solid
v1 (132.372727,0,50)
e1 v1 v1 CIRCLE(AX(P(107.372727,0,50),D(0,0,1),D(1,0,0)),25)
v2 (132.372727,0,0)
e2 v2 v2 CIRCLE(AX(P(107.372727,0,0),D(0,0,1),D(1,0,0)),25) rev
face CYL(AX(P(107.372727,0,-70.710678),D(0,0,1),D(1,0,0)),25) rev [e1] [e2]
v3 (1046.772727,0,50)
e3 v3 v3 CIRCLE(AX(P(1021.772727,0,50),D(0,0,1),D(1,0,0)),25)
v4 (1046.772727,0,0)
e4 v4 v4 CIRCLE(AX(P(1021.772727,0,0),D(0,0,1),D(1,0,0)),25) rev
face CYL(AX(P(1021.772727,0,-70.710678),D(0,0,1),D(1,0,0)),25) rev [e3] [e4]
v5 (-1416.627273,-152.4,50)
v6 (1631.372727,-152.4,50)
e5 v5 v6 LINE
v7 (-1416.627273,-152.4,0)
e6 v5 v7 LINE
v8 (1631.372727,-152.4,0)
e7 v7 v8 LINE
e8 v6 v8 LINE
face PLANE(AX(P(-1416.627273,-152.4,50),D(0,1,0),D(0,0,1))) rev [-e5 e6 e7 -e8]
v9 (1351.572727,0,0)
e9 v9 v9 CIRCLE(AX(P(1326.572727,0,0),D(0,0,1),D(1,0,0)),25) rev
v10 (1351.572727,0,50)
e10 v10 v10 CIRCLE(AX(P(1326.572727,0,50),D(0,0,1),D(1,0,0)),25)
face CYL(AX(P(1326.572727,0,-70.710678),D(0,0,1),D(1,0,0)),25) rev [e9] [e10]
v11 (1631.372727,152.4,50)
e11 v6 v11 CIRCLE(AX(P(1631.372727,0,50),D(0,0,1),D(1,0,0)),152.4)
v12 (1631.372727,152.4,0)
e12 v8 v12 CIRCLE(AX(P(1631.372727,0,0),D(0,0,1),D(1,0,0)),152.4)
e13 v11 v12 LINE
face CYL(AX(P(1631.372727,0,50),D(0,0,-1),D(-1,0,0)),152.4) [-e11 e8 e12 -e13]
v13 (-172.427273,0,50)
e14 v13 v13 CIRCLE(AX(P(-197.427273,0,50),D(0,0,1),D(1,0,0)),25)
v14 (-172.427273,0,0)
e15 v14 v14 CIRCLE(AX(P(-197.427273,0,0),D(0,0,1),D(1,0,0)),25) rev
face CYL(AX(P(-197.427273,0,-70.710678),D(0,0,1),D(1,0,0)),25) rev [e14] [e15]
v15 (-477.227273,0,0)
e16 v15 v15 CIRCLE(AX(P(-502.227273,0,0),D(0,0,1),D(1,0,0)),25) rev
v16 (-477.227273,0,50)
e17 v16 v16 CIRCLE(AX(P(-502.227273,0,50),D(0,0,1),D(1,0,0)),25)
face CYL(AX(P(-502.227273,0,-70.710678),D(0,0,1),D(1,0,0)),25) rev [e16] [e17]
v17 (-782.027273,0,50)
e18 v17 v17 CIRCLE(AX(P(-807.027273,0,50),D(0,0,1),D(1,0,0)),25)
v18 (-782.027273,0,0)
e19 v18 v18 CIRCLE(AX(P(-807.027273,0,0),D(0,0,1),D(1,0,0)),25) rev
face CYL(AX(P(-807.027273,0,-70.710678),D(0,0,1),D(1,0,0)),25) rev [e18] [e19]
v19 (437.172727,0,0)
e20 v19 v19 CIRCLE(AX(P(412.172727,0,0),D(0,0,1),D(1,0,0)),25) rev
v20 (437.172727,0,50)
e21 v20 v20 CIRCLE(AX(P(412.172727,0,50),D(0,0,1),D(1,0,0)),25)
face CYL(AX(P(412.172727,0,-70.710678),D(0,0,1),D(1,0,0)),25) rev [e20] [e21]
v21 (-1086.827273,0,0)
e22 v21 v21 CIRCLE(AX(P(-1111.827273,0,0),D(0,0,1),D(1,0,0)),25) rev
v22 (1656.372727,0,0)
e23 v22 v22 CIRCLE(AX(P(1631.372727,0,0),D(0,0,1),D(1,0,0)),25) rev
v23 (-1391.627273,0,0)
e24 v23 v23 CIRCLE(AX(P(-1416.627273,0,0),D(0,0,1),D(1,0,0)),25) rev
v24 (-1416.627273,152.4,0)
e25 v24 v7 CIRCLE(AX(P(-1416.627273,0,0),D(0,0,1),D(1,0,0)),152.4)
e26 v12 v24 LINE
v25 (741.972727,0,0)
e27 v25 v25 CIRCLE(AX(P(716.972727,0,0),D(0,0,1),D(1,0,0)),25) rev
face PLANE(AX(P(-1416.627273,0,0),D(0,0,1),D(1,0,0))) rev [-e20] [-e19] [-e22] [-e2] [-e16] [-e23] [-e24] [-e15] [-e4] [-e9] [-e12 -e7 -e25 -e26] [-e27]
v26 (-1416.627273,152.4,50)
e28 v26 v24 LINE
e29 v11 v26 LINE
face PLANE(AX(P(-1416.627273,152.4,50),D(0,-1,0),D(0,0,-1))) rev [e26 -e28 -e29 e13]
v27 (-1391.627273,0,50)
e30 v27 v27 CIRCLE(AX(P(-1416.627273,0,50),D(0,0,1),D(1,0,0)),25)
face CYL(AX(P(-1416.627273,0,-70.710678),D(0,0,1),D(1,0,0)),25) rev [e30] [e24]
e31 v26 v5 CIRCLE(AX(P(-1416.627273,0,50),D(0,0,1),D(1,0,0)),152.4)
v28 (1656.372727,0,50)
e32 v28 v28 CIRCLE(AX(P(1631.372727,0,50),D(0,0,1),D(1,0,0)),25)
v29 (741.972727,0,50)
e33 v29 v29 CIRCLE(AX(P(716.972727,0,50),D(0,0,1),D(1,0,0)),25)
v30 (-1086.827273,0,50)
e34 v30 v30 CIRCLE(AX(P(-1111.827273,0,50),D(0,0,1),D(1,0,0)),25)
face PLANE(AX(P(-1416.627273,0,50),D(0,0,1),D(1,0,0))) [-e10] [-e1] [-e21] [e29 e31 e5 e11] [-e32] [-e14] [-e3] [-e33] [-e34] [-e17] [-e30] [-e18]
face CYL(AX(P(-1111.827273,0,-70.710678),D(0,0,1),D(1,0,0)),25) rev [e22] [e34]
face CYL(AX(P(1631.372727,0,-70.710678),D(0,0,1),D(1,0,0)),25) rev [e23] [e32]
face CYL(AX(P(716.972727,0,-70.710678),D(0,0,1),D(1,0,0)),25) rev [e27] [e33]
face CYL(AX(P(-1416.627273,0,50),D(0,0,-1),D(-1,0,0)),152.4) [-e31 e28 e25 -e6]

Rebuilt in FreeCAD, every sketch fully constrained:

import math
import FreeCAD as App
import Part
import Sketcher
Q = App.Units.Quantity

doc = App.newDocument("Part")
body = doc.addObject("PartDesign::Body", "Body")

# Sketch on XY plane
sketch1 = doc.addObject("Sketcher::SketchObject", "Sketch")
body.addObject(sketch1)
sketch1.AttachmentSupport = (doc.XY_Plane, [""])
sketch1.MapMode = "FlatFace"
sketch1.addGeometry(Part.LineSegment(App.Vector(1631, 152, 0), App.Vector(-1417, 152, 0)), False)
sketch1.addGeometry(Part.ArcOfCircle(Part.Circle(App.Vector(-1417, 0, 0), App.Vector(0, 0, 1), 152), math.radians(90), math.radians(270)), False)
sketch1.addGeometry(Part.LineSegment(App.Vector(-1417, -152, 0), App.Vector(1631, -152, 0)), False)
sketch1.addGeometry(Part.ArcOfCircle(Part.Circle(App.Vector(1631, 0, 0), App.Vector(0, 0, 1), 152), math.radians(-90), math.radians(90)), False)
sketch1.addConstraint(Sketcher.Constraint("Tangent", 0, 2, 1, 1))
sketch1.addConstraint(Sketcher.Constraint("Tangent", 1, 2, 2, 1))
sketch1.addConstraint(Sketcher.Constraint("Tangent", 2, 2, 3, 1))
sketch1.addConstraint(Sketcher.Constraint("Tangent", 3, 2, 0, 1))
sketch1.addConstraint(Sketcher.Constraint("Horizontal", 0))
sketch1.addConstraint(Sketcher.Constraint("Horizontal", 2))
sketch1.addConstraint(Sketcher.Constraint("PointOnObject", 1, 3, -1))
sketch1.addConstraint(Sketcher.Constraint("Radius", 1, Q("6 in")))
sketch1.addConstraint(Sketcher.Constraint("DistanceX", 0, 2, 0, 1, Q("120 in")))
sketch1.addConstraint(Sketcher.Constraint("DistanceX", 1, 3, -1, 1, 1416.627273))
pad1 = doc.addObject("PartDesign::Pad", "Pad")
body.addObject(pad1)
pad1.Profile = sketch1
pad1.Length = 50

# Sketch on XY plane
sketch2 = doc.addObject("Sketcher::SketchObject", "Sketch001")
body.addObject(sketch2)
sketch2.AttachmentSupport = (doc.XY_Plane, [""])
sketch2.MapMode = "FlatFace"
sketch2.AttachmentOffset = App.Placement(App.Vector(0, 0, 50), App.Rotation())
sketch2.addGeometry(Part.Circle(App.Vector(1631, 0, 0), App.Vector(0, 0, 1), 25), False)
sketch2.addConstraint(Sketcher.Constraint("PointOnObject", 0, 3, -1))
sketch2.addConstraint(Sketcher.Constraint("Diameter", 0, 50.0))
sketch2.addConstraint(Sketcher.Constraint("DistanceX", -1, 1, 0, 3, 1631.372727))
pocket1 = doc.addObject("PartDesign::Pocket", "Pocket")
body.addObject(pocket1)
pocket1.Profile = sketch2
pocket1.Length = 50
doc.recompute()

linearpattern = doc.addObject("PartDesign::LinearPattern", "LinearPattern")
body.addObject(linearpattern)
linearpattern.Originals = [pocket1]
linearpattern.Direction = (doc.X_Axis, [""])
linearpattern.Mode = "offset"
linearpattern.Offset = Q("12 in")
linearpattern.Occurrences = 11
linearpattern.Reversed = True
body.Tip = linearpattern

doc.recompute()
